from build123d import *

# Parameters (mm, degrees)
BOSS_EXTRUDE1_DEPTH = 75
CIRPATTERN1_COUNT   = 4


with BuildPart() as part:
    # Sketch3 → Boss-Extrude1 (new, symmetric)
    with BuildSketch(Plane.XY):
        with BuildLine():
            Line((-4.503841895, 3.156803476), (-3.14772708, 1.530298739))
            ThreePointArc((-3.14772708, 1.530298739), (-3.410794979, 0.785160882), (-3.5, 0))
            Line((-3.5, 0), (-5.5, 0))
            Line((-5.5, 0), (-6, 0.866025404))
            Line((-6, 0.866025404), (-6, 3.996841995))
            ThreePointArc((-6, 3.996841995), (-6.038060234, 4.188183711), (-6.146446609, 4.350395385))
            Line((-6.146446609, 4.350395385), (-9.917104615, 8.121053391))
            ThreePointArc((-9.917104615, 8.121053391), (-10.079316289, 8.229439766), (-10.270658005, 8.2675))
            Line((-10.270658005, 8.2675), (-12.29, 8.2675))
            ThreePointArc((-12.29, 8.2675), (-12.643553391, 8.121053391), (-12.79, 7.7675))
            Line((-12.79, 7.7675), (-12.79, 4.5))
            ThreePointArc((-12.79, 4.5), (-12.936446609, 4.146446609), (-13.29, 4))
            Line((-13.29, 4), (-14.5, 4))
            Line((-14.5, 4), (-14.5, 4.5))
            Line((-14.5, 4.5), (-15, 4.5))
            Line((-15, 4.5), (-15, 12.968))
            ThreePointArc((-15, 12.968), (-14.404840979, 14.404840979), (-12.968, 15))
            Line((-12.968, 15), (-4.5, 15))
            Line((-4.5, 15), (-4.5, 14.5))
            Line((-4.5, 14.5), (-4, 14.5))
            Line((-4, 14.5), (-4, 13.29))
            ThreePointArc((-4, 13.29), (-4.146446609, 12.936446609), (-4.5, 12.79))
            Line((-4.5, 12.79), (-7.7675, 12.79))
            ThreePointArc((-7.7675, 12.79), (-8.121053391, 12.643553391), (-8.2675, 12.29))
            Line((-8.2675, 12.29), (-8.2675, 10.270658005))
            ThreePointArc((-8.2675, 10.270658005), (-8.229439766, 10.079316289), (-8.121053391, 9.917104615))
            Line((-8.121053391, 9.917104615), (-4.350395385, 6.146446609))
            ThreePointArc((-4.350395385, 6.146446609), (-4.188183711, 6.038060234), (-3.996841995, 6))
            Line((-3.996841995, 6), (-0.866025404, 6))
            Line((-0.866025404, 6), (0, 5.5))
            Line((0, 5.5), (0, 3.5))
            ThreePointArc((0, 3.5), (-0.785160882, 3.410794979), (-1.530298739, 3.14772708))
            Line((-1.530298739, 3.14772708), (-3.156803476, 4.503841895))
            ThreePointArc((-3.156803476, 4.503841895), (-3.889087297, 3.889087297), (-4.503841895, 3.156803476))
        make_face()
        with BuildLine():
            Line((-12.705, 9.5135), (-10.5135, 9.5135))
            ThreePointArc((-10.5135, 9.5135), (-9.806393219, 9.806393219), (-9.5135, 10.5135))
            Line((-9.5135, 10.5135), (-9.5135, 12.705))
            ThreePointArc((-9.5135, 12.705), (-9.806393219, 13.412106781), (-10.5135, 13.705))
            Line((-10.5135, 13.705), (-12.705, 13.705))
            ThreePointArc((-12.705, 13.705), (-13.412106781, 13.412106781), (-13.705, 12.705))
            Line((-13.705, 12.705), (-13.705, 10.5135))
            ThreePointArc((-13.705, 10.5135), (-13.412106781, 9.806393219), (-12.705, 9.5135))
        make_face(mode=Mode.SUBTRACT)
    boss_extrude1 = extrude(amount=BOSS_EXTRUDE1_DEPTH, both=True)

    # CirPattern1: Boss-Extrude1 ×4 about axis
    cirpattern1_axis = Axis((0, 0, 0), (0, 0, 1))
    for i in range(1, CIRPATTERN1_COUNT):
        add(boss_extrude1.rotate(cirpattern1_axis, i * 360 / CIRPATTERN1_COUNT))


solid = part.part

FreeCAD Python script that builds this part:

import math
import FreeCAD as App
import Part
import Sketcher
from FreeCAD import Vector
Q = App.Units.Quantity

doc = App.newDocument("Part")
params = doc.addObject("Spreadsheet::Sheet", "Params")
for row, (alias, value) in enumerate([
    ("sketch1_radius", "1 mm"),
    ("sketch1_radius2", "5.5 mm"),
    ("sketch1_radius3", "3.5 mm"),
    ("sketch1_radius4", "0.5 mm"),
    ("sketch1_width", "2 mm"),
    ("pad1_length", "150 mm"),
], start=1):
    params.set(f"A{row}", alias)
    params.set(f"B{row}", "=" + value)
    params.setAlias(f"B{row}", alias)

body = doc.addObject("PartDesign::Body", "Body")

sketch1 = doc.addObject("Sketcher::SketchObject", "Sketch")
body.addObject(sketch1)
sketch1.AttachmentSupport = (doc.XY_Plane, [""])
sketch1.MapMode = "FlatFace"
sketch1.addGeometry([
    Part.LineSegment(Vector(-3.15, 1.53, 0), Vector(-4.5, 3.16, 0)),
    Part.ArcOfCircle(Part.Circle(Vector(0, 0, 0), Vector(0, 0, 1), 5.5), math.radians(125.03), math.radians(144.97)),
    Part.LineSegment(Vector(-3.16, 4.5, 0), Vector(-1.53, 3.15, 0)),
    Part.ArcOfCircle(Part.Circle(Vector(0, 0, 0), Vector(0, 0, 1), 3.5), math.radians(90), math.radians(116)),
    Part.LineSegment(Vector(0, 3.5, 0), Vector(0, 5.5, 0)),
    Part.LineSegment(Vector(0, 5.5, 0), Vector(-0.87, 6, 0)),
    Part.LineSegment(Vector(-0.87, 6, 0), Vector(-4, 6, 0)),
    Part.ArcOfCircle(Part.Circle(Vector(-4, 6.5, 0), Vector(0, 0, 1), 0.5), math.radians(-135), math.radians(-90)),
    Part.LineSegment(Vector(-4.35, 6.15, 0), Vector(-8.12, 9.92, 0)),
    Part.ArcOfCircle(Part.Circle(Vector(-7.77, 10.27, 0), Vector(0, 0, 1), 0.5), math.radians(-180), math.radians(-135)),
    Part.LineSegment(Vector(-8.27, 10.27, 0), Vector(-8.27, 12.29, 0)),
    Part.ArcOfCircle(Part.Circle(Vector(-7.77, 12.29, 0), Vector(0, 0, 1), 0.5), math.radians(90), math.radians(180)),
    Part.LineSegment(Vector(-7.77, 12.79, 0), Vector(-4.5, 12.79, 0)),
    Part.ArcOfCircle(Part.Circle(Vector(-4.5, 13.29, 0), Vector(0, 0, 1), 0.5), math.radians(-90), math.radians(0)),
    Part.LineSegment(Vector(-4, 13.29, 0), Vector(-4, 14.5, 0)),
    Part.LineSegment(Vector(-4, 14.5, 0), Vector(-4.5, 14.5, 0)),
    Part.LineSegment(Vector(-4.5, 14.5, 0), Vector(-4.5, 15, 0)),
    Part.LineSegment(Vector(-4.5, 15, 0), Vector(-12.97, 15, 0)),
    Part.ArcOfCircle(Part.Circle(Vector(-12.97, 12.97, 0), Vector(0, 0, 1), 2.03), math.radians(90), math.radians(180)),
    Part.LineSegment(Vector(-15, 12.97, 0), Vector(-15, 4.5, 0)),
    Part.LineSegment(Vector(-15, 4.5, 0), Vector(-14.5, 4.5, 0)),
    Part.LineSegment(Vector(-14.5, 4.5, 0), Vector(-14.5, 4, 0)),
    Part.LineSegment(Vector(-14.5, 4, 0), Vector(-13.29, 4, 0)),
    Part.ArcOfCircle(Part.Circle(Vector(-13.29, 4.5, 0), Vector(0, 0, 1), 0.5), math.radians(-90), math.radians(0)),
    Part.LineSegment(Vector(-12.79, 4.5, 0), Vector(-12.79, 7.77, 0)),
    Part.ArcOfCircle(Part.Circle(Vector(-12.29, 7.77, 0), Vector(0, 0, 1), 0.5), math.radians(90), math.radians(180)),
    Part.LineSegment(Vector(-12.29, 8.27, 0), Vector(-10.27, 8.27, 0)),
    Part.ArcOfCircle(Part.Circle(Vector(-10.27, 7.77, 0), Vector(0, 0, 1), 0.5), math.radians(45), math.radians(90)),
    Part.LineSegment(Vector(-9.92, 8.12, 0), Vector(-6.15, 4.35, 0)),
    Part.ArcOfCircle(Part.Circle(Vector(-6.5, 4, 0), Vector(0, 0, 1), 0.5), math.radians(0), math.radians(45)),
    Part.LineSegment(Vector(-6, 4, 0), Vector(-6, 0.87, 0)),
    Part.LineSegment(Vector(-6, 0.87, 0), Vector(-5.5, 0, 0)),
    Part.LineSegment(Vector(-5.5, 0, 0), Vector(-3.5, 0, 0)),
    Part.ArcOfCircle(Part.Circle(Vector(0, 0, 0), Vector(0, 0, 1), 3.5), math.radians(154), math.radians(180)),
    Part.ArcOfCircle(Part.Circle(Vector(-12.7, 10.51, 0), Vector(0, 0, 1), 1), math.radians(-180), math.radians(-90)),
    Part.LineSegment(Vector(-13.71, 10.51, 0), Vector(-13.71, 12.71, 0)),
    Part.ArcOfCircle(Part.Circle(Vector(-12.7, 12.7, 0), Vector(0, 0, 1), 1), math.radians(90), math.radians(180)),
    Part.LineSegment(Vector(-12.71, 13.71, 0), Vector(-10.51, 13.71, 0)),
    Part.ArcOfCircle(Part.Circle(Vector(-10.51, 12.7, 0), Vector(0, 0, 1), 1), math.radians(0), math.radians(90)),
    Part.LineSegment(Vector(-9.51, 12.71, 0), Vector(-9.51, 10.51, 0)),
    Part.ArcOfCircle(Part.Circle(Vector(-10.51, 10.51, 0), Vector(0, 0, 1), 1), math.radians(-90), math.radians(0)),
    Part.LineSegment(Vector(-10.51, 9.51, 0), Vector(-12.71, 9.51, 0)),
], False)
sketch1.addConstraint([
    Sketcher.Constraint("Coincident", 0, 2, 1, 2),
    Sketcher.Constraint("Coincident", 1, 1, 2, 1),
    Sketcher.Constraint("Coincident", 2, 2, 3, 2),
    Sketcher.Constraint("Coincident", 3, 1, 4, 1),
    Sketcher.Constraint("Coincident", 4, 2, 5, 1),
    Sketcher.Constraint("Coincident", 5, 2, 6, 1),
    Sketcher.Constraint("Tangent", 6, 2, 7, 2),
    Sketcher.Constraint("Tangent", 7, 1, 8, 1),
    Sketcher.Constraint("Tangent", 8, 2, 9, 2),
    Sketcher.Constraint("Tangent", 9, 1, 10, 1),
    Sketcher.Constraint("Tangent", 10, 2, 11, 2),
    Sketcher.Constraint("Tangent", 11, 1, 12, 1),
    Sketcher.Constraint("Tangent", 12, 2, 13, 1),
    Sketcher.Constraint("Tangent", 13, 2, 14, 1),
    Sketcher.Constraint("Coincident", 14, 2, 15, 1),
    Sketcher.Constraint("Coincident", 15, 2, 16, 1),
    Sketcher.Constraint("Coincident", 16, 2, 17, 1),
    Sketcher.Constraint("Tangent", 17, 2, 18, 1),
    Sketcher.Constraint("Tangent", 18, 2, 19, 1),
    Sketcher.Constraint("Coincident", 19, 2, 20, 1),
    Sketcher.Constraint("Coincident", 20, 2, 21, 1),
    Sketcher.Constraint("Coincident", 21, 2, 22, 1),
    Sketcher.Constraint("Tangent", 22, 2, 23, 1),
    Sketcher.Constraint("Tangent", 23, 2, 24, 1),
    Sketcher.Constraint("Tangent", 24, 2, 25, 2),
    Sketcher.Constraint("Tangent", 25, 1, 26, 1),
    Sketcher.Constraint("Tangent", 26, 2, 27, 2),
    Sketcher.Constraint("Tangent", 27, 1, 28, 1),
    Sketcher.Constraint("Tangent", 28, 2, 29, 2),
    Sketcher.Constraint("Tangent", 29, 1, 30, 1),
    Sketcher.Constraint("Coincident", 30, 2, 31, 1),
    Sketcher.Constraint("Coincident", 31, 2, 32, 1),
    Sketcher.Constraint("Coincident", 32, 2, 33, 2),
    Sketcher.Constraint("Coincident", 33, 1, 0, 1),
    Sketcher.Constraint("Tangent", 34, 1, 35, 1),
    Sketcher.Constraint("Tangent", 35, 2, 36, 2),
    Sketcher.Constraint("Tangent", 36, 1, 37, 1),
    Sketcher.Constraint("Tangent", 37, 2, 38, 2),
    Sketcher.Constraint("Tangent", 38, 1, 39, 1),
    Sketcher.Constraint("Tangent", 39, 2, 40, 2),
    Sketcher.Constraint("Tangent", 40, 1, 41, 1),
    Sketcher.Constraint("Tangent", 41, 2, 34, 2),
    Sketcher.Constraint("Vertical", 4),
    Sketcher.Constraint("Horizontal", 6),
    Sketcher.Constraint("Vertical", 10),
    Sketcher.Constraint("Horizontal", 12),
    Sketcher.Constraint("Vertical", 14),
    Sketcher.Constraint("Horizontal", 15),
    Sketcher.Constraint("Vertical", 16),
    Sketcher.Constraint("Horizontal", 17),
    Sketcher.Constraint("Vertical", 19),
    Sketcher.Constraint("Horizontal", 20),
    Sketcher.Constraint("Vertical", 21),
    Sketcher.Constraint("Horizontal", 22),
    Sketcher.Constraint("Vertical", 24),
    Sketcher.Constraint("Horizontal", 26),
    Sketcher.Constraint("Vertical", 30),
    Sketcher.Constraint("Horizontal", 32),
    Sketcher.Constraint("Vertical", 35),
    Sketcher.Constraint("Horizontal", 37),
    Sketcher.Constraint("Vertical", 39),
    Sketcher.Constraint("Horizontal", 41),
    Sketcher.Constraint("Coincident", 1, 3, -1, 1),
    Sketcher.Constraint("Coincident", 3, 3, -1, 1),
    Sketcher.Constraint("Coincident", 33, 3, -1, 1),
    Sketcher.Constraint("Equal", 7, 9),
    Sketcher.Constraint("Equal", 9, 11),
    Sketcher.Constraint("Equal", 11, 13),
    Sketcher.Constraint("Equal", 13, 23),
    Sketcher.Constraint("Equal", 23, 25),
    Sketcher.Constraint("Equal", 25, 27),
    Sketcher.Constraint("Equal", 27, 29),
    Sketcher.Constraint("Equal", 3, 33),
    Sketcher.Constraint("Equal", 34, 36),
    Sketcher.Constraint("Equal", 36, 38),
    Sketcher.Constraint("Equal", 38, 40),
    Sketcher.Constraint("PointOnObject", 3, 1, -2),
    Sketcher.Constraint("PointOnObject", 31, 2, -1),
    Sketcher.Constraint("Parallel", 8, 28),
    Sketcher.Constraint("Horizontal", 23, 3, 19, 2),
    Sketcher.Constraint("Vertical", 12, 2, 15, 2),
    Sketcher.Constraint("Equal", 15, 20),
    Sketcher.Constraint("Equal", 32, 4),
    Sketcher.Constraint("Equal", 26, 10),
    Sketcher.Constraint("Equal", 22, 14),
    Sketcher.Constraint("Equal", 20, 16),
    Sketcher.Constraint("Equal", 17, 19),
    Sketcher.Constraint("Equal", 12, 24),
    Sketcher.Constraint("Equal", 6, 30),
    Sketcher.Constraint("Equal", 41, 35),
    Sketcher.Constraint("Equal", 0, 2),
    Sketcher.Constraint("Equal", 8, 28),
    Sketcher.Constraint("Equal", 5, 31),
    Sketcher.Constraint("Radius", 34, Q("1 mm")),
    Sketcher.Constraint("Radius", 1, Q("5.5 mm")),
    Sketcher.Constraint("Radius", 3, Q("3.5 mm")),
    Sketcher.Constraint("Radius", 7, Q("0.5 mm")),
    Sketcher.Constraint("DistanceX", 32, 1, 32, 2, Q("2 mm")),
    Sketcher.Constraint("Angle", 5, Q("150 deg")),
    Sketcher.Constraint("Angle", 8, Q("135 deg")),
    Sketcher.Constraint("Distance", 5, Q("1 mm")),
    Sketcher.Constraint("DistanceX", 13, 2, -1, 1, Q("4 mm")),
    Sketcher.Constraint("DistanceY", -1, 1, 16, 2, Q("15 mm")),
    Sketcher.Constraint("Radius", 18, Q("2.032 mm")),
    Sketcher.Constraint("DistanceX", 22, 1, 22, 2, Q("1.21 mm")),
    Sketcher.Constraint("Angle", 0, Q("129.82 deg")),
    Sketcher.Constraint("Angle", 2, Q("-39.82 deg")),
    Sketcher.Constraint("DistanceX", 12, 1, 12, 2, Q("3.2675 mm")),
    Sketcher.Constraint("DistanceX", 37, 1, 37, 2, Q("2.1915 mm")),
    Sketcher.Constraint("DistanceX", 34, 3, -1, 1, Q("12.705 mm")),
    Sketcher.Constraint("DistanceY", -1, 1, 36, 3, Q("12.705 mm")),
    Sketcher.Constraint("DistanceX", 0, 2, 7, 3, Q("0.507 mm")),
    Sketcher.Constraint("DistanceX", 26, 1, 26, 2, Q("2.019342 mm")),
])
sketch1.setExpression("Constraints[93]", "Params.sketch1_radius")
sketch1.setExpression("Constraints[94]", "Params.sketch1_radius2")
sketch1.setExpression("Constraints[95]", "Params.sketch1_radius3")
sketch1.setExpression("Constraints[96]", "Params.sketch1_radius4")
sketch1.setExpression("Constraints[97]", "Params.sketch1_width")
pad1 = doc.addObject("PartDesign::Pad", "Pad")
body.addObject(pad1)
pad1.Profile = sketch1
pad1.setExpression("Length", "Params.pad1_length")
pad1.Midplane = True
doc.recompute()

polarpattern = doc.addObject("PartDesign::PolarPattern", "PolarPattern")
body.addObject(polarpattern)
polarpattern.Originals = [pad1]
polarpattern.Axis = (doc.Z_Axis, [""])
polarpattern.Angle = 360
polarpattern.Occurrences = 4
body.Tip = polarpattern

doc.recompute()
